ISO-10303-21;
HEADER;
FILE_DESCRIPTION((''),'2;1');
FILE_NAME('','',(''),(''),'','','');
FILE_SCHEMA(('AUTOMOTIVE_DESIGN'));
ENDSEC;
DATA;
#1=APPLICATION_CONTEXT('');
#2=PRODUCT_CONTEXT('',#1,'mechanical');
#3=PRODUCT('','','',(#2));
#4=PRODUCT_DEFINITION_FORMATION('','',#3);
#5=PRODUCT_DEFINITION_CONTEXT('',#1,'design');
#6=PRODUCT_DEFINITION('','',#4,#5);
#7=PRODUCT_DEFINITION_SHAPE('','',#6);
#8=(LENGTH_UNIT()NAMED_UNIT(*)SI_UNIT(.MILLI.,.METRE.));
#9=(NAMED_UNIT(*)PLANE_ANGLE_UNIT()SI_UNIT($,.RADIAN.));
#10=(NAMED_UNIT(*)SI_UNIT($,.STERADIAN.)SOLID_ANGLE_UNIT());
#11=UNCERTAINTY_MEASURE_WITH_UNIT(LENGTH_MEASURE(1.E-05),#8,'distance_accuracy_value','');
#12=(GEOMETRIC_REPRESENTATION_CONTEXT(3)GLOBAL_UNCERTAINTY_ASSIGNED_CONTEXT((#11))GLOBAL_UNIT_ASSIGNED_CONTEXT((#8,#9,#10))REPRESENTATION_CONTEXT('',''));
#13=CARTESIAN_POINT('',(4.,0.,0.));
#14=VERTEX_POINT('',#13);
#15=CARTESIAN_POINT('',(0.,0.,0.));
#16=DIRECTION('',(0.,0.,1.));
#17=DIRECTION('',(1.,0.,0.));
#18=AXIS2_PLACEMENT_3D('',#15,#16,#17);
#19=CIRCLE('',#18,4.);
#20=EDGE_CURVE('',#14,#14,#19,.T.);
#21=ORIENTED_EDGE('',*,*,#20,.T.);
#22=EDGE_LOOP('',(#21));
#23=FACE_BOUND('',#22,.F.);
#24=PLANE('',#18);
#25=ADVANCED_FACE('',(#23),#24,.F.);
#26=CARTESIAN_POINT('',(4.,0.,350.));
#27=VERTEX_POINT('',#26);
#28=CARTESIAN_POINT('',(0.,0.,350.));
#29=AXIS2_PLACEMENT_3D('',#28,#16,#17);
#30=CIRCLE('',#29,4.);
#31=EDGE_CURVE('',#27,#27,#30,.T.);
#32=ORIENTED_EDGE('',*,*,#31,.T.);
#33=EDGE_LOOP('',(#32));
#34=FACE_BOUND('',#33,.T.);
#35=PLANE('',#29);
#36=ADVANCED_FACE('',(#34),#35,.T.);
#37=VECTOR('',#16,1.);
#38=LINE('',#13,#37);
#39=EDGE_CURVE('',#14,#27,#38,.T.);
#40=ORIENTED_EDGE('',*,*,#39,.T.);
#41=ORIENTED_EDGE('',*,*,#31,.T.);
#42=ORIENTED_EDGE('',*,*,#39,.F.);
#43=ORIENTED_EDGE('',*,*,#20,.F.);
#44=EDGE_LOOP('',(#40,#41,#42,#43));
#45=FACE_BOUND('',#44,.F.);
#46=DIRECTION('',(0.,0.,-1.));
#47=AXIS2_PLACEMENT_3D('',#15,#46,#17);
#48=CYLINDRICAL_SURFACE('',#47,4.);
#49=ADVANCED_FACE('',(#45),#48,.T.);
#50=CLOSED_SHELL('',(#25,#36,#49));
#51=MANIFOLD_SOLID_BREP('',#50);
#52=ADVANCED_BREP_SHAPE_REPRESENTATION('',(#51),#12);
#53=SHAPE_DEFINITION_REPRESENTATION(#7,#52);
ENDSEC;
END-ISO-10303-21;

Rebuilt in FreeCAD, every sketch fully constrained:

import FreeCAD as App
import Part
import Sketcher
from FreeCAD import Vector

doc = App.newDocument("Part")
body = doc.addObject("PartDesign::Body", "Body")

sketch1 = body.newObject("Sketcher::SketchObject", "Sketch")
sketch1.AttachmentSupport = (doc.getObject("XY_Plane"), [""])
sketch1.MapMode = "FlatFace"
sketch1.addGeometry(Part.Circle(Vector(0, 0, 0), Vector(0, 0, 1), 4), False)
sketch1.addConstraint([
    Sketcher.Constraint("Coincident", 0, 3, -1, 1),
    Sketcher.Constraint("Diameter", 0, 8.0),
])
pad1 = body.newObject("PartDesign::Pad", "Pad")
pad1.Profile = sketch1
pad1.Length = 350

doc.recompute()
